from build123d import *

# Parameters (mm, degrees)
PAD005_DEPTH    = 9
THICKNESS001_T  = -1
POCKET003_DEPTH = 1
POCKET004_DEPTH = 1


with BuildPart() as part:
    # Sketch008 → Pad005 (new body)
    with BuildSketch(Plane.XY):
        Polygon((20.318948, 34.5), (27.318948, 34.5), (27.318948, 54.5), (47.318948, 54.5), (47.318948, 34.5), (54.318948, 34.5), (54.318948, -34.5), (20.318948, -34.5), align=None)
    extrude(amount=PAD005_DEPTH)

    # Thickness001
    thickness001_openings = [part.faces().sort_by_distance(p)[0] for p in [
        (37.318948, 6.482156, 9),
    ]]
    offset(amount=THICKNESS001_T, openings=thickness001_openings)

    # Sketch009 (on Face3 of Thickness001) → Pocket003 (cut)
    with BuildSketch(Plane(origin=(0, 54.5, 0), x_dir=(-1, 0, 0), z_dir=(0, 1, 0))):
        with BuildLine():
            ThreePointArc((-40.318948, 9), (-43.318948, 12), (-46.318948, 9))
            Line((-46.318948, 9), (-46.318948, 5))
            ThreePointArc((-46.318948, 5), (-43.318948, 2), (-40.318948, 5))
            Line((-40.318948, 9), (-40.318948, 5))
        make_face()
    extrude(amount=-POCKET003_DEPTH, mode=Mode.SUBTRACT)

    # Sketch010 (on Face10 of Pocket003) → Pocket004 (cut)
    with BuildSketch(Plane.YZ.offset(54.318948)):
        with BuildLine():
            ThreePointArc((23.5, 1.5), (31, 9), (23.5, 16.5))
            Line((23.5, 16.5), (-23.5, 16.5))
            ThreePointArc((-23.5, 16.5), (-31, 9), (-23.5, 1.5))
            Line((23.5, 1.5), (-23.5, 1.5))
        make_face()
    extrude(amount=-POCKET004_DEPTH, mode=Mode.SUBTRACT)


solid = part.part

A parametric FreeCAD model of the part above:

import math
import FreeCAD as App
import Part
import Sketcher

V = App.Vector
Q = App.Units.Quantity


def faces_at(feature, points):
    """Names of the faces that lie closest to the given points."""
    faces = feature.Shape.Faces
    near = lambda p: min(range(len(faces)), key=lambda i: faces[i].distToShape(Part.Vertex(*p))[0])
    return sorted({f"Face{near(p) + 1}" for p in points})

doc = App.newDocument("Part")
body = doc.addObject("PartDesign::Body", "Body")

sketch1 = body.newObject("Sketcher::SketchObject", "Sketch")
sketch1.AttachmentSupport = (doc.getObject("XY_Plane"), [""])
sketch1.MapMode = "FlatFace"
sketch1.addGeometry([
    Part.LineSegment(V(27, 34, 0), V(20, 34, 0)),
    Part.LineSegment(V(20, 34, 0), V(20, -34, 0)),
    Part.LineSegment(V(20, -34, 0), V(54, -34, 0)),
    Part.LineSegment(V(54, -34, 0), V(54, 34, 0)),
    Part.LineSegment(V(54, 34, 0), V(47, 34, 0)),
    Part.LineSegment(V(47, 34, 0), V(47, 54, 0)),
    Part.LineSegment(V(47, 54, 0), V(27, 54, 0)),
    Part.LineSegment(V(27, 54, 0), V(27, 34, 0)),
], False)
sketch1.addConstraint([
    Sketcher.Constraint("Coincident", 0, 2, 1, 1),
    Sketcher.Constraint("Coincident", 1, 2, 2, 1),
    Sketcher.Constraint("Coincident", 2, 2, 3, 1),
    Sketcher.Constraint("Coincident", 3, 2, 4, 1),
    Sketcher.Constraint("Coincident", 4, 2, 5, 1),
    Sketcher.Constraint("Coincident", 5, 2, 6, 1),
    Sketcher.Constraint("Coincident", 6, 2, 7, 1),
    Sketcher.Constraint("Coincident", 7, 2, 0, 1),
    Sketcher.Constraint("Horizontal", 0),
    Sketcher.Constraint("Vertical", 1),
    Sketcher.Constraint("Horizontal", 2),
    Sketcher.Constraint("Vertical", 3),
    Sketcher.Constraint("Horizontal", 4),
    Sketcher.Constraint("Vertical", 5),
    Sketcher.Constraint("Horizontal", 6),
    Sketcher.Constraint("Vertical", 7),
    Sketcher.Constraint("Horizontal", 0, 2, 3, 2),
    Sketcher.Constraint("Equal", 0, 4),
    Sketcher.Constraint("Equal", 6, 5),
    Sketcher.Constraint("DistanceX", 0, 2, 0, 1, Q("7 mm")),
    Sketcher.Constraint("DistanceX", 2, 1, 2, 2, Q("34 mm")),
    Sketcher.Constraint("DistanceY", 1, 2, 1, 1, Q("69 mm")),
    Sketcher.Constraint("DistanceY", -1, 1, 0, 2, Q("34.5 mm")),
    Sketcher.Constraint("DistanceX", -1, 1, 0, 2, Q("20.318948 mm")),
])
pad1 = body.newObject("PartDesign::Pad", "Pad")
pad1.Profile = sketch1
pad1.Length = 9
doc.recompute()

thickness = body.newObject("PartDesign::Thickness", "Thickness")
thickness.Base = (pad1, faces_at(pad1, [(37.319, 10, 9)]))
thickness.Value = 1
thickness.Reversed = True
thickness.Join = "Arc"

sketch2 = body.newObject("Sketcher::SketchObject", "Sketch001")
sketch2.AttachmentSupport = (doc.getObject("XZ_Plane"), [""])
sketch2.MapMode = "FlatFace"
sketch2.AttachmentOffset = App.Placement(V(0, 0, -54.5), App.Rotation())
sketch2.addGeometry([
    Part.ArcOfCircle(Part.Circle(V(43.3, 9, 0), V(0, 0, 1), 3), math.radians(0), math.radians(180)),
    Part.LineSegment(V(46.3, 9, 0), V(46.3, 5, 0)),
    Part.ArcOfCircle(Part.Circle(V(43.3, 5, 0), V(0, 0, 1), 3), math.radians(180), math.radians(360)),
    Part.LineSegment(V(40.3, 5, 0), V(40.3, 9, 0)),
], False)
sketch2.addConstraint([
    Sketcher.Constraint("Tangent", 0, 1, 1, 1),
    Sketcher.Constraint("Tangent", 1, 2, 2, 2),
    Sketcher.Constraint("Tangent", 2, 1, 3, 1),
    Sketcher.Constraint("Tangent", 3, 2, 0, 2),
    Sketcher.Constraint("Vertical", 1),
    Sketcher.Constraint("Vertical", 3),
    Sketcher.Constraint("Radius", 0, Q("3 mm")),
    Sketcher.Constraint("DistanceY", 1, 2, 1, 1, Q("4 mm")),
    Sketcher.Constraint("DistanceY", -1, 1, 0, 3, Q("9 mm")),
    Sketcher.Constraint("DistanceX", -1, 1, 0, 3, Q("43.318948 mm")),
])
pocket1 = body.newObject("PartDesign::Pocket", "Pocket")
pocket1.Profile = sketch2
pocket1.Length = 1
pocket1.Reversed = True

sketch3 = body.newObject("Sketcher::SketchObject", "Sketch002")
sketch3.AttachmentSupport = (doc.getObject("YZ_Plane"), [""])
sketch3.MapMode = "FlatFace"
sketch3.AttachmentOffset = App.Placement(V(0, 0, 54.318948), App.Rotation())
sketch3.addGeometry([
    Part.ArcOfCircle(Part.Circle(V(24, 9, 0), V(0, 0, 1), 8), math.radians(-90), math.radians(90)),
    Part.LineSegment(V(24, 16, 0), V(-24, 16, 0)),
    Part.ArcOfCircle(Part.Circle(V(-24, 9, 0), V(0, 0, 1), 8), math.radians(90), math.radians(270)),
    Part.LineSegment(V(-24, 2, 0), V(24, 2, 0)),
], False)
sketch3.addConstraint([
    Sketcher.Constraint("Tangent", 0, 2, 1, 1),
    Sketcher.Constraint("Tangent", 1, 2, 2, 1),
    Sketcher.Constraint("Tangent", 2, 2, 3, 1),
    Sketcher.Constraint("Tangent", 3, 2, 0, 1),
    Sketcher.Constraint("Horizontal", 1),
    Sketcher.Constraint("Horizontal", 3),
    Sketcher.Constraint("Radius", 0, Q("7.5 mm")),
    Sketcher.Constraint("DistanceX", 1, 2, 1, 1, Q("47 mm")),
    Sketcher.Constraint("DistanceY", -1, 1, 0, 3, Q("9 mm")),
    Sketcher.Constraint("DistanceX", -1, 1, 0, 3, Q("23.5 mm")),
])
pocket2 = body.newObject("PartDesign::Pocket", "Pocket001")
pocket2.Profile = sketch3
pocket2.Length = 1

doc.recompute()
